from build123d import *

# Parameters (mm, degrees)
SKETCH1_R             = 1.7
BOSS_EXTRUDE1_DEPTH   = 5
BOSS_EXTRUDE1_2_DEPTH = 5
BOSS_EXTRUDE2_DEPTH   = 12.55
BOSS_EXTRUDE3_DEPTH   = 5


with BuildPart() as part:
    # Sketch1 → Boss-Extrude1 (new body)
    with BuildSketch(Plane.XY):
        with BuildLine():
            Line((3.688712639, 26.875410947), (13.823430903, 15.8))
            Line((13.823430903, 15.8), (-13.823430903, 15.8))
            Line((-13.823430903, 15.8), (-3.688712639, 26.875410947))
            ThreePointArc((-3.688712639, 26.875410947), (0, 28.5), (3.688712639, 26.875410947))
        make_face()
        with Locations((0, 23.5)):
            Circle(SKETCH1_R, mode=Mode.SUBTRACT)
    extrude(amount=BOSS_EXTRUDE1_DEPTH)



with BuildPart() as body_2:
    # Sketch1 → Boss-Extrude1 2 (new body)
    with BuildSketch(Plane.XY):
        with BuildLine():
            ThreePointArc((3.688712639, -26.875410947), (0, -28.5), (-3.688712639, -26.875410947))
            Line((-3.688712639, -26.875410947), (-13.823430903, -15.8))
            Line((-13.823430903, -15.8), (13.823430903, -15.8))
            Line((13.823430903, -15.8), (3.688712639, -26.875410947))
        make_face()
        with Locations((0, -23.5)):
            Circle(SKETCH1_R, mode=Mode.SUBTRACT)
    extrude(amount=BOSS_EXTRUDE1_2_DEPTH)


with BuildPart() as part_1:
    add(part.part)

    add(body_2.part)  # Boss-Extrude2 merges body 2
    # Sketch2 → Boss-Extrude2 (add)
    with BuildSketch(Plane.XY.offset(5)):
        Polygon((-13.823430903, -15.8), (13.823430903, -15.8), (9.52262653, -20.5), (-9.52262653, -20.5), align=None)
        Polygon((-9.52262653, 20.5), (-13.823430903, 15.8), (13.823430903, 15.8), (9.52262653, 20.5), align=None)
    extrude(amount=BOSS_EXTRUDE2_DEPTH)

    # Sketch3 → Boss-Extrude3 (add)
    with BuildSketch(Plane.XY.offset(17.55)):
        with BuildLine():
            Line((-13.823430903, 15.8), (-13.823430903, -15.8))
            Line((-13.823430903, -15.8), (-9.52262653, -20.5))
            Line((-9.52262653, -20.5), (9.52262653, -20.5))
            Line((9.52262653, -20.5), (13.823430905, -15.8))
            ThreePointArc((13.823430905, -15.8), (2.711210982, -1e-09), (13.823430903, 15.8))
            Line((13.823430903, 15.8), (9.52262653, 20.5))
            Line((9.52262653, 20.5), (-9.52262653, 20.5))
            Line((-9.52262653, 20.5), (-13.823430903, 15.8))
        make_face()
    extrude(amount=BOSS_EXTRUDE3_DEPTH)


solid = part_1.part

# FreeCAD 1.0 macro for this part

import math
import FreeCAD as App
import Part
import Sketcher
from FreeCAD import Vector
Q = App.Units.Quantity

doc = App.newDocument("Part")
body = doc.addObject("PartDesign::Body", "Body")

# Sketch on XY plane
sketch1 = body.newObject("Sketcher::SketchObject", "Sketch")
sketch1.AttachmentSupport = (doc.getObject("XY_Plane"), [""])
sketch1.MapMode = "FlatFace"
sketch1.addGeometry([
    Part.LineSegment(Vector(13.8, 15.8, 0), Vector(3.7, 26.9, 0)),  # 0
    Part.ArcOfCircle(Part.Circle(Vector(0, 23.5, 0), Vector(0, 0, 1), 5), math.radians(42), math.radians(138)),  # 1
    Part.LineSegment(Vector(-3.7, 26.9, 0), Vector(-13.8, 15.8, 0)),  # 2
    Part.LineSegment(Vector(-13.8, 15.8, 0), Vector(13.8, 15.8, 0)),  # 3
    Part.Circle(Vector(0, 23.5, 0), Vector(0, 0, 1), 1.7),  # 4
], False)
sketch1.addConstraint([
    Sketcher.Constraint("Tangent", 0, 2, 1, 1),
    Sketcher.Constraint("Tangent", 1, 2, 2, 1),
    Sketcher.Constraint("Coincident", 2, 2, 3, 1),
    Sketcher.Constraint("Coincident", 3, 2, 0, 1),
    Sketcher.Constraint("Horizontal", 3),
    Sketcher.Constraint("Coincident", 4, 3, 1, 3),
    Sketcher.Constraint("Symmetric", 0, 2, 1, 2, -2),
    Sketcher.Constraint("Radius", 1, Q("5 mm")),
    Sketcher.Constraint("Diameter", 4, Q("3.4 mm")),
    Sketcher.Constraint("DistanceY", -1, 1, 1, 3, Q("23.5 mm")),
    Sketcher.Constraint("DistanceY", -1, 1, 2, 2, Q("15.8 mm")),
    Sketcher.Constraint("DistanceX", 3, 1, 3, 2, Q("27.646862 mm")),
])
pad1 = body.newObject("PartDesign::Pad", "Pad")
pad1.Profile = sketch1
pad1.Length = 5
body2 = doc.addObject("PartDesign::Body", "Body001")

# Sketch on XY plane
sketch2 = body2.newObject("Sketcher::SketchObject", "Sketch001")
sketch2.AttachmentSupport = (doc.getObject("XY_Plane001"), [""])
sketch2.MapMode = "FlatFace"
sketch2.addGeometry([
    Part.ArcOfCircle(Part.Circle(Vector(0, -23.5, 0), Vector(0, 0, 1), 5), math.radians(-138), math.radians(-42)),  # 0
    Part.LineSegment(Vector(3.7, -26.9, 0), Vector(13.8, -15.8, 0)),  # 1
    Part.LineSegment(Vector(13.8, -15.8, 0), Vector(-13.8, -15.8, 0)),  # 2
    Part.LineSegment(Vector(-13.8, -15.8, 0), Vector(-3.7, -26.9, 0)),  # 3
    Part.Circle(Vector(0, -23.5, 0), Vector(0, 0, 1), 1.7),  # 4
], False)
sketch2.addConstraint([
    Sketcher.Constraint("Tangent", 0, 2, 1, 1),
    Sketcher.Constraint("Coincident", 1, 2, 2, 1),
    Sketcher.Constraint("Coincident", 2, 2, 3, 1),
    Sketcher.Constraint("Tangent", 3, 2, 0, 1),
    Sketcher.Constraint("Horizontal", 2),
    Sketcher.Constraint("Coincident", 4, 3, 0, 3),
    Sketcher.Constraint("Symmetric", 0, 2, 3, 2, -2),
    Sketcher.Constraint("Radius", 0, Q("5 mm")),
    Sketcher.Constraint("Diameter", 4, Q("3.4 mm")),
    Sketcher.Constraint("DistanceY", 0, 3, -1, 1, Q("23.5 mm")),
    Sketcher.Constraint("DistanceY", 1, 2, -1, 1, Q("15.8 mm")),
    Sketcher.Constraint("DistanceX", 2, 2, 2, 1, Q("27.646862 mm")),
])
pad2 = body2.newObject("PartDesign::Pad", "Pad001")
pad2.Profile = sketch2
pad2.Length = 5
body.AllowCompound = True
doc.recompute()

boolean = body.newObject("PartDesign::Boolean", "Boolean")
boolean.Type = "Fuse"
boolean.addObjects([body2])

# Sketch on XY plane
sketch3 = body.newObject("Sketcher::SketchObject", "Sketch002")
sketch3.AttachmentSupport = (doc.getObject("XY_Plane"), [""])
sketch3.MapMode = "FlatFace"
sketch3.AttachmentOffset = App.Placement(Vector(0, 0, 5), App.Rotation())
sketch3.addGeometry([
    Part.LineSegment(Vector(14, -16, 0), Vector(-14, -16, 0)),  # 0
    Part.LineSegment(Vector(-14, -16, 0), Vector(-10, -20, 0)),  # 1
    Part.LineSegment(Vector(-10, -20, 0), Vector(10, -20, 0)),  # 2
    Part.LineSegment(Vector(10, -20, 0), Vector(14, -16, 0)),  # 3
    Part.LineSegment(Vector(-10, 20, 0), Vector(-14, 16, 0)),  # 4
    Part.LineSegment(Vector(-14, 16, 0), Vector(14, 16, 0)),  # 5
    Part.LineSegment(Vector(14, 16, 0), Vector(10, 20, 0)),  # 6
    Part.LineSegment(Vector(10, 20, 0), Vector(-10, 20, 0)),  # 7
], False)
sketch3.addConstraint([
    Sketcher.Constraint("Coincident", 0, 2, 1, 1),
    Sketcher.Constraint("Coincident", 1, 2, 2, 1),
    Sketcher.Constraint("Coincident", 2, 2, 3, 1),
    Sketcher.Constraint("Coincident", 3, 2, 0, 1),
    Sketcher.Constraint("Coincident", 4, 2, 5, 1),
    Sketcher.Constraint("Coincident", 5, 2, 6, 1),
    Sketcher.Constraint("Coincident", 6, 2, 7, 1),
    Sketcher.Constraint("Coincident", 7, 2, 4, 1),
    Sketcher.Constraint("Horizontal", 0),
    Sketcher.Constraint("Horizontal", 2),
    Sketcher.Constraint("Horizontal", 5),
    Sketcher.Constraint("Horizontal", 7),
    Sketcher.Constraint("Symmetric", 3, 2, 4, 2, -1, 1),
    Sketcher.Constraint("Symmetric", 1, 2, 6, 2, -1, 1),
    Sketcher.Constraint("Parallel", 3, 4),
    Sketcher.Constraint("Parallel", 1, 6),
    Sketcher.Constraint("Vertical", 0, 2, 4, 2),
    Sketcher.Constraint("Vertical", 2, 2, 6, 2),
    Sketcher.Constraint("DistanceY", 2, 2, 6, 2, Q("41 mm")),
    Sketcher.Constraint("DistanceY", 0, 2, -1, 1, Q("15.8 mm")),
    Sketcher.Constraint("DistanceX", 0, 2, 0, 1, Q("27.646862 mm")),
    Sketcher.Constraint("DistanceX", 2, 1, 2, 2, Q("19.045253 mm")),
])
pad3 = body.newObject("PartDesign::Pad", "Pad002")
pad3.Profile = sketch3
pad3.Length = 12.55

# Sketch on XY plane
sketch4 = body.newObject("Sketcher::SketchObject", "Sketch003")
sketch4.AttachmentSupport = (doc.getObject("XY_Plane"), [""])
sketch4.MapMode = "FlatFace"
sketch4.AttachmentOffset = App.Placement(Vector(0, 0, 17.55), App.Rotation())
sketch4.addGeometry([
    Part.LineSegment(Vector(-14, 16, 0), Vector(-14, -16, 0)),  # 0
    Part.LineSegment(Vector(-14, -16, 0), Vector(-10, -20, 0)),  # 1
    Part.LineSegment(Vector(-10, -20, 0), Vector(10, -20, 0)),  # 2
    Part.LineSegment(Vector(10, -20, 0), Vector(14, -16, 0)),  # 3
    Part.ArcOfCircle(Part.Circle(Vector(20, 0, 0), Vector(0, 0, 1), 17), math.radians(110), math.radians(250)),  # 4
    Part.LineSegment(Vector(14, 16, 0), Vector(10, 20, 0)),  # 5
    Part.LineSegment(Vector(10, 20, 0), Vector(-10, 20, 0)),  # 6
    Part.LineSegment(Vector(-10, 20, 0), Vector(-14, 16, 0)),  # 7
], False)
sketch4.addConstraint([
    Sketcher.Constraint("Coincident", 0, 2, 1, 1),
    Sketcher.Constraint("Coincident", 1, 2, 2, 1),
    Sketcher.Constraint("Coincident", 2, 2, 3, 1),
    Sketcher.Constraint("Coincident", 3, 2, 4, 2),
    Sketcher.Constraint("Coincident", 4, 1, 5, 1),
    Sketcher.Constraint("Coincident", 5, 2, 6, 1),
    Sketcher.Constraint("Coincident", 6, 2, 7, 1),
    Sketcher.Constraint("Coincident", 7, 2, 0, 1),
    Sketcher.Constraint("Vertical", 0),
    Sketcher.Constraint("Horizontal", 2),
    Sketcher.Constraint("Horizontal", 6),
    Sketcher.Constraint("Symmetric", 0, 2, 4, 1, -1, 1),
    Sketcher.Constraint("Symmetric", 1, 2, 5, 2, -1, 1),
    Sketcher.Constraint("Symmetric", 3, 2, 7, 2, -1, 1),
    Sketcher.Constraint("PointOnObject", 4, 3, -1),
    Sketcher.Constraint("Parallel", 3, 7),
    Sketcher.Constraint("Vertical", 2, 2, 5, 2),
    Sketcher.Constraint("DistanceY", 0, 2, 0, 1, Q("31.6 mm")),
    Sketcher.Constraint("DistanceY", 2, 2, 5, 2, Q("41 mm")),
    Sketcher.Constraint("DistanceX", -1, 1, 4, 3, Q("19.5 mm")),
    Sketcher.Constraint("Radius", 4, Q("16.788789 mm")),
    Sketcher.Constraint("DistanceX", 2, 1, 2, 2, Q("19.045253 mm")),
])
pad4 = body.newObject("PartDesign::Pad", "Pad003")
pad4.Profile = sketch4
pad4.Length = 5

doc.recompute()
